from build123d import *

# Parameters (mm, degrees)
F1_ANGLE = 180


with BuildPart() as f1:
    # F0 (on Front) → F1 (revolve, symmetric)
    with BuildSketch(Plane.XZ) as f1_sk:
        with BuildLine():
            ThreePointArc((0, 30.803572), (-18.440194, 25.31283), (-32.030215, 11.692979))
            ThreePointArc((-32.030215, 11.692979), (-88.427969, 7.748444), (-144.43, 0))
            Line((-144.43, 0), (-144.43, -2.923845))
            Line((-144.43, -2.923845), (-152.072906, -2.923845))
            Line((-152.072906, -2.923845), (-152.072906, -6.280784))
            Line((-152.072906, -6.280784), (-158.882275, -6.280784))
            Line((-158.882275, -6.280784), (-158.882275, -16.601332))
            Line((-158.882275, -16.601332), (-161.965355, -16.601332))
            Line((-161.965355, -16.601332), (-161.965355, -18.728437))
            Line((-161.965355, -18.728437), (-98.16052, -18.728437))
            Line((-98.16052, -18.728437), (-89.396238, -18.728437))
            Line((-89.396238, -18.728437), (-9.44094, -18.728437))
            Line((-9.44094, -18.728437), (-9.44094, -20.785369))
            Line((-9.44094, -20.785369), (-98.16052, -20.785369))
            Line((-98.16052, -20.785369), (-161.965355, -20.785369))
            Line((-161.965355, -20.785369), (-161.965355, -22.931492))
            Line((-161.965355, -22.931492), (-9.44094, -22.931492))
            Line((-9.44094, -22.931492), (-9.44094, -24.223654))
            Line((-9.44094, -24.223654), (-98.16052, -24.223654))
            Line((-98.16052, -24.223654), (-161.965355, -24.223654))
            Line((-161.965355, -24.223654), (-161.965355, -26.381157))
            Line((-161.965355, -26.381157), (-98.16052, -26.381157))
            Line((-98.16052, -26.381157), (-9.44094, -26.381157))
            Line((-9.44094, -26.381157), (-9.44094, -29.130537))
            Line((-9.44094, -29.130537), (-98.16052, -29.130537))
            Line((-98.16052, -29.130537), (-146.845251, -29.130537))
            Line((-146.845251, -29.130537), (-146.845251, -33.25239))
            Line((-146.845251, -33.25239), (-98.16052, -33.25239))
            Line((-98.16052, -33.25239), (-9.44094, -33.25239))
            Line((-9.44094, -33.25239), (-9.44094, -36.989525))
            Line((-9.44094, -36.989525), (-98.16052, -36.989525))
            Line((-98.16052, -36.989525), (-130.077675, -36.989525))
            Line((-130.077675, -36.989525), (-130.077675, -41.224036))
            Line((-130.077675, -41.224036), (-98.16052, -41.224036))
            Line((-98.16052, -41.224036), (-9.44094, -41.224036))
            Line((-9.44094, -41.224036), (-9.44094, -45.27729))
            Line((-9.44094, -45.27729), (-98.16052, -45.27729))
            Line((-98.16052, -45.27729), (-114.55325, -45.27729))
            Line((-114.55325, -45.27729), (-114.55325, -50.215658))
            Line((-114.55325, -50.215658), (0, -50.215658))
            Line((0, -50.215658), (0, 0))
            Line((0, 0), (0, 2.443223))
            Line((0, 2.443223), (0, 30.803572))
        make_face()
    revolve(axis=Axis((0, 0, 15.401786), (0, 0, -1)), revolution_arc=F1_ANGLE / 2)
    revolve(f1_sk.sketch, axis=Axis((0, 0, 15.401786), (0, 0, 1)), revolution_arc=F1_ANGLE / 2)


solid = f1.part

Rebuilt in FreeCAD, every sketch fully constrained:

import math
import FreeCAD as App
import Part
import Sketcher
from FreeCAD import Vector
Q = App.Units.Quantity

doc = App.newDocument("Part")
body = doc.addObject("PartDesign::Body", "Body")

sketch1 = body.newObject("Sketcher::SketchObject", "Sketch")
sketch1.AttachmentSupport = (doc.getObject("XZ_Plane"), [""])
sketch1.MapMode = "FlatFace"
sketch1.addGeometry([
    Part.ArcOfCircle(Part.Circle(Vector(1.6, -8.3, 0), Vector(0, 0, 1), 39.1), math.radians(92), math.radians(149)),
    Part.ArcOfCircle(Part.Circle(Vector(-2, -823.5, 0), Vector(0, 0, 1), 835.7), math.radians(92.06), math.radians(99.82)),
    Part.LineSegment(Vector(-144.4, 0, 0), Vector(-144.4, -2.9, 0)),
    Part.LineSegment(Vector(-144.4, -2.9, 0), Vector(-152.1, -2.9, 0)),
    Part.LineSegment(Vector(-152.1, -2.9, 0), Vector(-152.1, -6.3, 0)),
    Part.LineSegment(Vector(-152.1, -6.3, 0), Vector(-158.9, -6.3, 0)),
    Part.LineSegment(Vector(-158.9, -6.3, 0), Vector(-158.9, -16.6, 0)),
    Part.LineSegment(Vector(-158.9, -16.6, 0), Vector(-162, -16.6, 0)),
    Part.LineSegment(Vector(-162, -16.6, 0), Vector(-162, -18.7, 0)),
    Part.LineSegment(Vector(-162, -18.7, 0), Vector(-9.4, -18.7, 0)),
    Part.LineSegment(Vector(-9.4, -18.7, 0), Vector(-9.4, -20.8, 0)),
    Part.LineSegment(Vector(-9.4, -20.8, 0), Vector(-162, -20.8, 0)),
    Part.LineSegment(Vector(-162, -20.8, 0), Vector(-162, -22.9, 0)),
    Part.LineSegment(Vector(-162, -22.9, 0), Vector(-9.4, -22.9, 0)),
    Part.LineSegment(Vector(-9.4, -22.9, 0), Vector(-9.4, -24.2, 0)),
    Part.LineSegment(Vector(-9.4, -24.2, 0), Vector(-162, -24.2, 0)),
    Part.LineSegment(Vector(-162, -24.2, 0), Vector(-162, -26.4, 0)),
    Part.LineSegment(Vector(-162, -26.4, 0), Vector(-9.4, -26.4, 0)),
    Part.LineSegment(Vector(-9.4, -26.4, 0), Vector(-9.4, -29.1, 0)),
    Part.LineSegment(Vector(-9.4, -29.1, 0), Vector(-146.8, -29.1, 0)),
    Part.LineSegment(Vector(-146.8, -29.1, 0), Vector(-146.8, -33.3, 0)),
    Part.LineSegment(Vector(-146.8, -33.3, 0), Vector(-9.4, -33.3, 0)),
    Part.LineSegment(Vector(-9.4, -33.3, 0), Vector(-9.4, -37, 0)),
    Part.LineSegment(Vector(-9.4, -37, 0), Vector(-130.1, -37, 0)),
    Part.LineSegment(Vector(-130.1, -37, 0), Vector(-130.1, -41.2, 0)),
    Part.LineSegment(Vector(-130.1, -41.2, 0), Vector(-9.4, -41.2, 0)),
    Part.LineSegment(Vector(-9.4, -41.2, 0), Vector(-9.4, -45.3, 0)),
    Part.LineSegment(Vector(-9.4, -45.3, 0), Vector(-114.6, -45.3, 0)),
    Part.LineSegment(Vector(-114.6, -45.3, 0), Vector(-114.6, -50.2, 0)),
    Part.LineSegment(Vector(-114.6, -50.2, 0), Vector(0, -50.2, 0)),
    Part.LineSegment(Vector(0, -50.2, 0), Vector(0, 30.8, 0)),
], False)
sketch1.addConstraint([
    Sketcher.Constraint("Coincident", 0, 2, 1, 1),
    Sketcher.Constraint("Coincident", 1, 2, 2, 1),
    Sketcher.Constraint("Coincident", 2, 2, 3, 1),
    Sketcher.Constraint("Coincident", 3, 2, 4, 1),
    Sketcher.Constraint("Coincident", 4, 2, 5, 1),
    Sketcher.Constraint("Coincident", 5, 2, 6, 1),
    Sketcher.Constraint("Coincident", 6, 2, 7, 1),
    Sketcher.Constraint("Coincident", 7, 2, 8, 1),
    Sketcher.Constraint("Coincident", 8, 2, 9, 1),
    Sketcher.Constraint("Coincident", 9, 2, 10, 1),
    Sketcher.Constraint("Coincident", 10, 2, 11, 1),
    Sketcher.Constraint("Coincident", 11, 2, 12, 1),
    Sketcher.Constraint("Coincident", 12, 2, 13, 1),
    Sketcher.Constraint("Coincident", 13, 2, 14, 1),
    Sketcher.Constraint("Coincident", 14, 2, 15, 1),
    Sketcher.Constraint("Coincident", 15, 2, 16, 1),
    Sketcher.Constraint("Coincident", 16, 2, 17, 1),
    Sketcher.Constraint("Coincident", 17, 2, 18, 1),
    Sketcher.Constraint("Coincident", 18, 2, 19, 1),
    Sketcher.Constraint("Coincident", 19, 2, 20, 1),
    Sketcher.Constraint("Coincident", 20, 2, 21, 1),
    Sketcher.Constraint("Coincident", 21, 2, 22, 1),
    Sketcher.Constraint("Coincident", 22, 2, 23, 1),
    Sketcher.Constraint("Coincident", 23, 2, 24, 1),
    Sketcher.Constraint("Coincident", 24, 2, 25, 1),
    Sketcher.Constraint("Coincident", 25, 2, 26, 1),
    Sketcher.Constraint("Coincident", 26, 2, 27, 1),
    Sketcher.Constraint("Coincident", 27, 2, 28, 1),
    Sketcher.Constraint("Coincident", 28, 2, 29, 1),
    Sketcher.Constraint("Coincident", 29, 2, 30, 1),
    Sketcher.Constraint("Coincident", 30, 2, 0, 1),
    Sketcher.Constraint("Vertical", 2),
    Sketcher.Constraint("Horizontal", 3),
    Sketcher.Constraint("Vertical", 4),
    Sketcher.Constraint("Horizontal", 5),
    Sketcher.Constraint("Vertical", 6),
    Sketcher.Constraint("Horizontal", 7),
    Sketcher.Constraint("Vertical", 8),
    Sketcher.Constraint("Horizontal", 9),
    Sketcher.Constraint("Vertical", 10),
    Sketcher.Constraint("Horizontal", 11),
    Sketcher.Constraint("Vertical", 12),
    Sketcher.Constraint("Horizontal", 13),
    Sketcher.Constraint("Vertical", 14),
    Sketcher.Constraint("Horizontal", 15),
    Sketcher.Constraint("Vertical", 16),
    Sketcher.Constraint("Horizontal", 17),
    Sketcher.Constraint("Vertical", 18),
    Sketcher.Constraint("Horizontal", 19),
    Sketcher.Constraint("Vertical", 20),
    Sketcher.Constraint("Horizontal", 21),
    Sketcher.Constraint("Vertical", 22),
    Sketcher.Constraint("Horizontal", 23),
    Sketcher.Constraint("Vertical", 24),
    Sketcher.Constraint("Horizontal", 25),
    Sketcher.Constraint("Vertical", 26),
    Sketcher.Constraint("Horizontal", 27),
    Sketcher.Constraint("Vertical", 28),
    Sketcher.Constraint("Horizontal", 29),
    Sketcher.Constraint("Vertical", 30),
    Sketcher.Constraint("PointOnObject", 1, 2, -1),
    Sketcher.Constraint("PointOnObject", 29, 2, -2),
    Sketcher.Constraint("Vertical", 8, 2, 11, 2),
    Sketcher.Constraint("Vertical", 10, 2, 13, 2),
    Sketcher.Constraint("Vertical", 12, 2, 15, 2),
    Sketcher.Constraint("Vertical", 14, 2, 17, 2),
    Sketcher.Constraint("Vertical", 18, 2, 21, 2),
    Sketcher.Constraint("Vertical", 22, 2, 25, 2),
    Sketcher.Constraint("DistanceX", 2, 2, -1, 1, Q("144.43 mm")),
    Sketcher.Constraint("Radius", 0, Q("39.106913 mm")),
    Sketcher.Constraint("Radius", 1, Q("835.748038 mm")),
    Sketcher.Constraint("DistanceX", 20, 2, 27, 2, Q("32.292001 mm")),
    Sketcher.Constraint("DistanceX", 5, 2, 5, 1, Q("6.809369 mm")),
    Sketcher.Constraint("DistanceX", 7, 2, 7, 1, Q("3.08308 mm")),
    Sketcher.Constraint("DistanceX", 19, 2, 19, 1, Q("137.404311 mm")),
    Sketcher.Constraint("DistanceX", 29, 1, 29, 2, Q("114.55325 mm")),
    Sketcher.Constraint("DistanceY", 4, 2, 4, 1, Q("3.356939 mm")),
    Sketcher.Constraint("DistanceY", 10, 2, 10, 1, Q("2.056932 mm")),
    Sketcher.Constraint("DistanceY", 18, 2, 18, 1, Q("2.74938 mm")),
    Sketcher.Constraint("DistanceY", 24, 2, 24, 1, Q("4.234511 mm")),
    Sketcher.Constraint("DistanceY", 30, 1, 30, 2, Q("81.01923 mm")),
    Sketcher.Constraint("DistanceY", 18, 2, 9, 2, Q("10.4021 mm")),
    Sketcher.Constraint("DistanceY", 24, 2, 19, 2, Q("12.093499 mm")),
    Sketcher.Constraint("DistanceY", 26, 2, 21, 2, Q("12.0249 mm")),
    Sketcher.Constraint("DistanceX", 3, 2, 3, 1, Q("7.642906 mm")),
    Sketcher.Constraint("DistanceX", 23, 2, 23, 1, Q("120.636735 mm")),
    Sketcher.Constraint("DistanceY", 2, 2, 2, 1, Q("2.923845 mm")),
    Sketcher.Constraint("DistanceY", 6, 2, 6, 1, Q("10.320548 mm")),
    Sketcher.Constraint("DistanceY", 8, 2, 8, 1, Q("2.127105 mm")),
    Sketcher.Constraint("DistanceY", 12, 2, 12, 1, Q("2.146123 mm")),
    Sketcher.Constraint("DistanceY", 14, 2, 14, 1, Q("1.292162 mm")),
    Sketcher.Constraint("DistanceY", 20, 2, 20, 1, Q("4.121853 mm")),
    Sketcher.Constraint("DistanceY", 28, 2, 28, 1, Q("4.938368 mm")),
    Sketcher.Constraint("DistanceX", -1, 1, 0, 3, Q("1.59718 mm")),
    Sketcher.Constraint("DistanceX", 1, 3, -1, 1, Q("1.951559 mm")),
])
revolution = body.newObject("PartDesign::Revolution", "Revolution")
revolution.Profile = sketch1
revolution.ReferenceAxis = (sketch1, ["V_Axis"])
revolution.Angle = 90
revolution.Reversed = True

sketch2 = body.newObject("Sketcher::SketchObject", "Sketch001")
sketch2.AttachmentSupport = (doc.getObject("XZ_Plane"), [""])
sketch2.MapMode = "FlatFace"
sketch2.addGeometry([
    Part.ArcOfCircle(Part.Circle(Vector(1.6, -8.3, 0), Vector(0, 0, 1), 39.1), math.radians(92), math.radians(149)),
    Part.ArcOfCircle(Part.Circle(Vector(-2, -823.5, 0), Vector(0, 0, 1), 835.7), math.radians(92.06), math.radians(99.82)),
    Part.LineSegment(Vector(-144.4, 0, 0), Vector(-144.4, -2.9, 0)),
    Part.LineSegment(Vector(-144.4, -2.9, 0), Vector(-152.1, -2.9, 0)),
    Part.LineSegment(Vector(-152.1, -2.9, 0), Vector(-152.1, -6.3, 0)),
    Part.LineSegment(Vector(-152.1, -6.3, 0), Vector(-158.9, -6.3, 0)),
    Part.LineSegment(Vector(-158.9, -6.3, 0), Vector(-158.9, -16.6, 0)),
    Part.LineSegment(Vector(-158.9, -16.6, 0), Vector(-162, -16.6, 0)),
    Part.LineSegment(Vector(-162, -16.6, 0), Vector(-162, -18.7, 0)),
    Part.LineSegment(Vector(-162, -18.7, 0), Vector(-9.4, -18.7, 0)),
    Part.LineSegment(Vector(-9.4, -18.7, 0), Vector(-9.4, -20.8, 0)),
    Part.LineSegment(Vector(-9.4, -20.8, 0), Vector(-162, -20.8, 0)),
    Part.LineSegment(Vector(-162, -20.8, 0), Vector(-162, -22.9, 0)),
    Part.LineSegment(Vector(-162, -22.9, 0), Vector(-9.4, -22.9, 0)),
    Part.LineSegment(Vector(-9.4, -22.9, 0), Vector(-9.4, -24.2, 0)),
    Part.LineSegment(Vector(-9.4, -24.2, 0), Vector(-162, -24.2, 0)),
    Part.LineSegment(Vector(-162, -24.2, 0), Vector(-162, -26.4, 0)),
    Part.LineSegment(Vector(-162, -26.4, 0), Vector(-9.4, -26.4, 0)),
    Part.LineSegment(Vector(-9.4, -26.4, 0), Vector(-9.4, -29.1, 0)),
    Part.LineSegment(Vector(-9.4, -29.1, 0), Vector(-146.8, -29.1, 0)),
    Part.LineSegment(Vector(-146.8, -29.1, 0), Vector(-146.8, -33.3, 0)),
    Part.LineSegment(Vector(-146.8, -33.3, 0), Vector(-9.4, -33.3, 0)),
    Part.LineSegment(Vector(-9.4, -33.3, 0), Vector(-9.4, -37, 0)),
    Part.LineSegment(Vector(-9.4, -37, 0), Vector(-130.1, -37, 0)),
    Part.LineSegment(Vector(-130.1, -37, 0), Vector(-130.1, -41.2, 0)),
    Part.LineSegment(Vector(-130.1, -41.2, 0), Vector(-9.4, -41.2, 0)),
    Part.LineSegment(Vector(-9.4, -41.2, 0), Vector(-9.4, -45.3, 0)),
    Part.LineSegment(Vector(-9.4, -45.3, 0), Vector(-114.6, -45.3, 0)),
    Part.LineSegment(Vector(-114.6, -45.3, 0), Vector(-114.6, -50.2, 0)),
    Part.LineSegment(Vector(-114.6, -50.2, 0), Vector(0, -50.2, 0)),
    Part.LineSegment(Vector(0, -50.2, 0), Vector(0, 30.8, 0)),
], False)
sketch2.addConstraint([
    Sketcher.Constraint("Coincident", 0, 2, 1, 1),
    Sketcher.Constraint("Coincident", 1, 2, 2, 1),
    Sketcher.Constraint("Coincident", 2, 2, 3, 1),
    Sketcher.Constraint("Coincident", 3, 2, 4, 1),
    Sketcher.Constraint("Coincident", 4, 2, 5, 1),
    Sketcher.Constraint("Coincident", 5, 2, 6, 1),
    Sketcher.Constraint("Coincident", 6, 2, 7, 1),
    Sketcher.Constraint("Coincident", 7, 2, 8, 1),
    Sketcher.Constraint("Coincident", 8, 2, 9, 1),
    Sketcher.Constraint("Coincident", 9, 2, 10, 1),
    Sketcher.Constraint("Coincident", 10, 2, 11, 1),
    Sketcher.Constraint("Coincident", 11, 2, 12, 1),
    Sketcher.Constraint("Coincident", 12, 2, 13, 1),
    Sketcher.Constraint("Coincident", 13, 2, 14, 1),
    Sketcher.Constraint("Coincident", 14, 2, 15, 1),
    Sketcher.Constraint("Coincident", 15, 2, 16, 1),
    Sketcher.Constraint("Coincident", 16, 2, 17, 1),
    Sketcher.Constraint("Coincident", 17, 2, 18, 1),
    Sketcher.Constraint("Coincident", 18, 2, 19, 1),
    Sketcher.Constraint("Coincident", 19, 2, 20, 1),
    Sketcher.Constraint("Coincident", 20, 2, 21, 1),
    Sketcher.Constraint("Coincident", 21, 2, 22, 1),
    Sketcher.Constraint("Coincident", 22, 2, 23, 1),
    Sketcher.Constraint("Coincident", 23, 2, 24, 1),
    Sketcher.Constraint("Coincident", 24, 2, 25, 1),
    Sketcher.Constraint("Coincident", 25, 2, 26, 1),
    Sketcher.Constraint("Coincident", 26, 2, 27, 1),
    Sketcher.Constraint("Coincident", 27, 2, 28, 1),
    Sketcher.Constraint("Coincident", 28, 2, 29, 1),
    Sketcher.Constraint("Coincident", 29, 2, 30, 1),
    Sketcher.Constraint("Coincident", 30, 2, 0, 1),
    Sketcher.Constraint("Vertical", 2),
    Sketcher.Constraint("Horizontal", 3),
    Sketcher.Constraint("Vertical", 4),
    Sketcher.Constraint("Horizontal", 5),
    Sketcher.Constraint("Vertical", 6),
    Sketcher.Constraint("Horizontal", 7),
    Sketcher.Constraint("Vertical", 8),
    Sketcher.Constraint("Horizontal", 9),
    Sketcher.Constraint("Vertical", 10),
    Sketcher.Constraint("Horizontal", 11),
    Sketcher.Constraint("Vertical", 12),
    Sketcher.Constraint("Horizontal", 13),
    Sketcher.Constraint("Vertical", 14),
    Sketcher.Constraint("Horizontal", 15),
    Sketcher.Constraint("Vertical", 16),
    Sketcher.Constraint("Horizontal", 17),
    Sketcher.Constraint("Vertical", 18),
    Sketcher.Constraint("Horizontal", 19),
    Sketcher.Constraint("Vertical", 20),
    Sketcher.Constraint("Horizontal", 21),
    Sketcher.Constraint("Vertical", 22),
    Sketcher.Constraint("Horizontal", 23),
    Sketcher.Constraint("Vertical", 24),
    Sketcher.Constraint("Horizontal", 25),
    Sketcher.Constraint("Vertical", 26),
    Sketcher.Constraint("Horizontal", 27),
    Sketcher.Constraint("Vertical", 28),
    Sketcher.Constraint("Horizontal", 29),
    Sketcher.Constraint("Vertical", 30),
    Sketcher.Constraint("PointOnObject", 1, 2, -1),
    Sketcher.Constraint("PointOnObject", 29, 2, -2),
    Sketcher.Constraint("Vertical", 8, 2, 11, 2),
    Sketcher.Constraint("Vertical", 10, 2, 13, 2),
    Sketcher.Constraint("Vertical", 12, 2, 15, 2),
    Sketcher.Constraint("Vertical", 14, 2, 17, 2),
    Sketcher.Constraint("Vertical", 18, 2, 21, 2),
    Sketcher.Constraint("Vertical", 22, 2, 25, 2),
    Sketcher.Constraint("DistanceX", 2, 2, -1, 1, Q("144.43 mm")),
    Sketcher.Constraint("Radius", 0, Q("39.106913 mm")),
    Sketcher.Constraint("Radius", 1, Q("835.748038 mm")),
    Sketcher.Constraint("DistanceX", 20, 2, 27, 2, Q("32.292001 mm")),
    Sketcher.Constraint("DistanceX", 5, 2, 5, 1, Q("6.809369 mm")),
    Sketcher.Constraint("DistanceX", 7, 2, 7, 1, Q("3.08308 mm")),
    Sketcher.Constraint("DistanceX", 19, 2, 19, 1, Q("137.404311 mm")),
    Sketcher.Constraint("DistanceX", 29, 1, 29, 2, Q("114.55325 mm")),
    Sketcher.Constraint("DistanceY", 4, 2, 4, 1, Q("3.356939 mm")),
    Sketcher.Constraint("DistanceY", 10, 2, 10, 1, Q("2.056932 mm")),
    Sketcher.Constraint("DistanceY", 18, 2, 18, 1, Q("2.74938 mm")),
    Sketcher.Constraint("DistanceY", 24, 2, 24, 1, Q("4.234511 mm")),
    Sketcher.Constraint("DistanceY", 30, 1, 30, 2, Q("81.01923 mm")),
    Sketcher.Constraint("DistanceY", 18, 2, 9, 2, Q("10.4021 mm")),
    Sketcher.Constraint("DistanceY", 24, 2, 19, 2, Q("12.093499 mm")),
    Sketcher.Constraint("DistanceY", 26, 2, 21, 2, Q("12.0249 mm")),
    Sketcher.Constraint("DistanceX", 3, 2, 3, 1, Q("7.642906 mm")),
    Sketcher.Constraint("DistanceX", 23, 2, 23, 1, Q("120.636735 mm")),
    Sketcher.Constraint("DistanceY", 2, 2, 2, 1, Q("2.923845 mm")),
    Sketcher.Constraint("DistanceY", 6, 2, 6, 1, Q("10.320548 mm")),
    Sketcher.Constraint("DistanceY", 8, 2, 8, 1, Q("2.127105 mm")),
    Sketcher.Constraint("DistanceY", 12, 2, 12, 1, Q("2.146123 mm")),
    Sketcher.Constraint("DistanceY", 14, 2, 14, 1, Q("1.292162 mm")),
    Sketcher.Constraint("DistanceY", 20, 2, 20, 1, Q("4.121853 mm")),
    Sketcher.Constraint("DistanceY", 28, 2, 28, 1, Q("4.938368 mm")),
    Sketcher.Constraint("DistanceX", -1, 1, 0, 3, Q("1.59718 mm")),
    Sketcher.Constraint("DistanceX", 1, 3, -1, 1, Q("1.951559 mm")),
])
revolution2 = body.newObject("PartDesign::Revolution", "Revolution001")
revolution2.Profile = sketch2
revolution2.ReferenceAxis = (sketch2, ["V_Axis"])
revolution2.Angle = 90

doc.recompute()
